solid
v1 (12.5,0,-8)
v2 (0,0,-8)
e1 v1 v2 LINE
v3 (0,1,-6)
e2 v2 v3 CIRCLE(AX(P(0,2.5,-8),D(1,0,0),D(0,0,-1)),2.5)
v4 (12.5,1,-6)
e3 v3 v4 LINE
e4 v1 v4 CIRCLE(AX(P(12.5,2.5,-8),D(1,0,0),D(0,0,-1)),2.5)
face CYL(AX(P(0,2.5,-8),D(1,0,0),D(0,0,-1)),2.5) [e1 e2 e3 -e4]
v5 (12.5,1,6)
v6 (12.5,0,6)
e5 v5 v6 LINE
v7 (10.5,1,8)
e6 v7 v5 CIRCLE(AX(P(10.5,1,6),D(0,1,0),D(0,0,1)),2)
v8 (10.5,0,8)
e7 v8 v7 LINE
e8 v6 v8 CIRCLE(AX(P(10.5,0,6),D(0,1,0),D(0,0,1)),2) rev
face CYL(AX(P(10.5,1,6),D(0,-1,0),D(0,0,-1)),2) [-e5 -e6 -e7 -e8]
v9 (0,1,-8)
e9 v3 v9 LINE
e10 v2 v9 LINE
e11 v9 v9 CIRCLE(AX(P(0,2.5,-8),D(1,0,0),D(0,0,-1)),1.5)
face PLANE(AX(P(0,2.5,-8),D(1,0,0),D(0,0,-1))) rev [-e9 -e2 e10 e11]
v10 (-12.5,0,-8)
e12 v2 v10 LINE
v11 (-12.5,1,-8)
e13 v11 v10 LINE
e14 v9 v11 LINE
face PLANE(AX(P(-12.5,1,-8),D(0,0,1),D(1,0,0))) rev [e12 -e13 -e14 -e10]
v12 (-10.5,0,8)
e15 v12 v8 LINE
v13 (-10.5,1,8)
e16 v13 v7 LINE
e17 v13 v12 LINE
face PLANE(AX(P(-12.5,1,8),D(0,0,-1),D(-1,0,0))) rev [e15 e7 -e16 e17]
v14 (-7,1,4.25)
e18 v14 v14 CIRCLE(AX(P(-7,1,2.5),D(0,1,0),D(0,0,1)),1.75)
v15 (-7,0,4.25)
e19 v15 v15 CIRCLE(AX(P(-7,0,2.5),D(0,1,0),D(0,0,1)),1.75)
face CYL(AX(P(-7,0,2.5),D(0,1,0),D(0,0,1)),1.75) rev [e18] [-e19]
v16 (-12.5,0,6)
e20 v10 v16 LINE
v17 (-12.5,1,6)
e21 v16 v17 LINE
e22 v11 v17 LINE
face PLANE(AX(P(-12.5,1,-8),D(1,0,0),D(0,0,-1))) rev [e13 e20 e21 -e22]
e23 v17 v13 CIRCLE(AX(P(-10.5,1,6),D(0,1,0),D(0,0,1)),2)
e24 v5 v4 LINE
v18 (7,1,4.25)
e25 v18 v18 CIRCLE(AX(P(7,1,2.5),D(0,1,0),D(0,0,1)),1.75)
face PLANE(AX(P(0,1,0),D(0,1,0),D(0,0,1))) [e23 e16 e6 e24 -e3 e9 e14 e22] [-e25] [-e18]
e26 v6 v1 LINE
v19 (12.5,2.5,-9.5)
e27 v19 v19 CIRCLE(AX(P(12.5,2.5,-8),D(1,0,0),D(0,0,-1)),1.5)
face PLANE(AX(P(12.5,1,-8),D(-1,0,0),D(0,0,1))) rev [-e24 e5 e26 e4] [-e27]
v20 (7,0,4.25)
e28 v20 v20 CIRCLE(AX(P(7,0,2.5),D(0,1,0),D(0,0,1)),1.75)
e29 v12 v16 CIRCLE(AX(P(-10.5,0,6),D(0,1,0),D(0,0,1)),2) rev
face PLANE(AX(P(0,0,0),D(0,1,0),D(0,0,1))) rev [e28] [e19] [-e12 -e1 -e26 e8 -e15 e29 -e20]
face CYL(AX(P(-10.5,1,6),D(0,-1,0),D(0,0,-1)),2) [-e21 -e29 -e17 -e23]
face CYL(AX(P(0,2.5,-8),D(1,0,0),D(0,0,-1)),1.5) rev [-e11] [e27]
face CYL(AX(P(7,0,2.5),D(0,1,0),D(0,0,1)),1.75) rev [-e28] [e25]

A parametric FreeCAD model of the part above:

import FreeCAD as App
import Part
import Sketcher


def edges_at(feature, points):
    """Names of the edges that pass closest to the given points."""
    edges = feature.Shape.Edges
    near = lambda p: min(range(len(edges)), key=lambda i: edges[i].distToShape(Part.Vertex(*p))[0])
    return sorted({f"Edge{near(p) + 1}" for p in points})

doc = App.newDocument("Part")
params = doc.addObject("Spreadsheet::Sheet", "Params")
for row, (alias, value) in enumerate([
    ("sketch1_width", "25 mm"),
    ("sketch1_height", "16 mm"),
    ("pad1_length", "1 mm"),
    ("sketch2_diameter", "3.5 mm"),
    ("sketch3_diameter", "5 mm"),
    ("sketch3_diameter2", "3 mm"),
    ("pad2_length", "12.5 mm"),
    ("fillet_radius", "2 mm"),
], start=1):
    params.set(f"A{row}", alias)
    params.set(f"B{row}", "=" + value)
    params.setAlias(f"B{row}", alias)

body = doc.addObject("PartDesign::Body", "Body")

# Sketch on XZ plane
sketch1 = body.newObject("Sketcher::SketchObject", "Sketch")
sketch1.AttachmentSupport = (doc.getObject("XZ_Plane"), [""])
sketch1.MapMode = "FlatFace"
sketch1.addGeometry(Part.LineSegment(App.Vector(-12.5, -8, 0), App.Vector(-12.5, 8, 0)), False)
sketch1.addGeometry(Part.LineSegment(App.Vector(-12.5, 8, 0), App.Vector(12.5, 8, 0)), False)
sketch1.addGeometry(Part.LineSegment(App.Vector(12.5, 8, 0), App.Vector(12.5, -8, 0)), False)
sketch1.addGeometry(Part.LineSegment(App.Vector(12.5, -8, 0), App.Vector(-12.5, -8, 0)), False)
sketch1.addConstraint(Sketcher.Constraint("Coincident", 0, 2, 1, 1))
sketch1.addConstraint(Sketcher.Constraint("Coincident", 1, 2, 2, 1))
sketch1.addConstraint(Sketcher.Constraint("Coincident", 2, 2, 3, 1))
sketch1.addConstraint(Sketcher.Constraint("Coincident", 3, 2, 0, 1))
sketch1.addConstraint(Sketcher.Constraint("Vertical", 0))
sketch1.addConstraint(Sketcher.Constraint("Horizontal", 1))
sketch1.addConstraint(Sketcher.Constraint("Vertical", 2))
sketch1.addConstraint(Sketcher.Constraint("Horizontal", 3))
sketch1.addConstraint(Sketcher.Constraint("Symmetric", 0, 2, 2, 2, -1, 1))
sketch1.addConstraint(Sketcher.Constraint("DistanceX", 1, 1, 1, 2, 25.0))
sketch1.addConstraint(Sketcher.Constraint("DistanceY", 0, 1, 0, 2, 16.0))
sketch1.setExpression("Constraints[9]", "Params.sketch1_width")
sketch1.setExpression("Constraints[10]", "Params.sketch1_height")
pad1 = body.newObject("PartDesign::Pad", "Pad")
pad1.Profile = sketch1
pad1.setExpression("Length", "Params.pad1_length")
pad1.Reversed = True

# Sketch on XZ plane
sketch2 = body.newObject("Sketcher::SketchObject", "Sketch001")
sketch2.AttachmentSupport = (doc.getObject("XZ_Plane"), [""])
sketch2.MapMode = "FlatFace"
sketch2.AttachmentOffset = App.Placement(App.Vector(0, 0, -1), App.Rotation())
sketch2.addGeometry(Part.Circle(App.Vector(-7, 2.5, 0), App.Vector(0, 0, 1), 1.75), False)
sketch2.addGeometry(Part.Circle(App.Vector(7, 2.5, 0), App.Vector(0, 0, 1), 1.75), False)
sketch2.addConstraint(Sketcher.Constraint("Equal", 0, 1))
sketch2.addConstraint(Sketcher.Constraint("Symmetric", 0, 3, 1, 3, -2))
sketch2.addConstraint(Sketcher.Constraint("Diameter", 0, 3.5))
sketch2.addConstraint(Sketcher.Constraint("DistanceX", 0, 3, -1, 1, 7.0))
sketch2.addConstraint(Sketcher.Constraint("DistanceY", -1, 1, 0, 3, 2.5))
sketch2.setExpression("Constraints[2]", "Params.sketch2_diameter")
pocket1 = body.newObject("PartDesign::Pocket", "Pocket")
pocket1.Profile = sketch2
pocket1.Type = "ThroughAll"
pocket1.Reversed = True

# Sketch on YZ plane
sketch3 = body.newObject("Sketcher::SketchObject", "Sketch002")
sketch3.AttachmentSupport = (doc.getObject("YZ_Plane"), [""])
sketch3.MapMode = "FlatFace"
sketch3.AttachmentOffset = App.Placement(App.Vector(0, 0, 12.5), App.Rotation())
sketch3.addGeometry(Part.Circle(App.Vector(2.5, -8, 0), App.Vector(0, 0, 1), 2.5), False)
sketch3.addGeometry(Part.Circle(App.Vector(2.5, -8, 0), App.Vector(0, 0, 1), 1.5), False)
sketch3.addConstraint(Sketcher.Constraint("Coincident", 1, 3, 0, 3))
sketch3.addConstraint(Sketcher.Constraint("Diameter", 0, 5.0))
sketch3.addConstraint(Sketcher.Constraint("Diameter", 1, 3.0))
sketch3.addConstraint(Sketcher.Constraint("DistanceY", 0, 3, -1, 1, 8.0))
sketch3.addConstraint(Sketcher.Constraint("DistanceX", -1, 1, 0, 3, 2.5))
sketch3.setExpression("Constraints[1]", "Params.sketch3_diameter")
sketch3.setExpression("Constraints[2]", "Params.sketch3_diameter2")
pad2 = body.newObject("PartDesign::Pad", "Pad001")
pad2.Profile = sketch3
pad2.setExpression("Length", "Params.pad2_length")
pad2.Reversed = True
doc.recompute()

fillet = body.newObject("PartDesign::Fillet", "Fillet")
fillet.Base = (pad2, edges_at(pad2, [(12.5, 0.5, 8), (-12.5, 0.5, 8)]))
fillet.setExpression("Radius", "Params.fillet_radius")

doc.recompute()
